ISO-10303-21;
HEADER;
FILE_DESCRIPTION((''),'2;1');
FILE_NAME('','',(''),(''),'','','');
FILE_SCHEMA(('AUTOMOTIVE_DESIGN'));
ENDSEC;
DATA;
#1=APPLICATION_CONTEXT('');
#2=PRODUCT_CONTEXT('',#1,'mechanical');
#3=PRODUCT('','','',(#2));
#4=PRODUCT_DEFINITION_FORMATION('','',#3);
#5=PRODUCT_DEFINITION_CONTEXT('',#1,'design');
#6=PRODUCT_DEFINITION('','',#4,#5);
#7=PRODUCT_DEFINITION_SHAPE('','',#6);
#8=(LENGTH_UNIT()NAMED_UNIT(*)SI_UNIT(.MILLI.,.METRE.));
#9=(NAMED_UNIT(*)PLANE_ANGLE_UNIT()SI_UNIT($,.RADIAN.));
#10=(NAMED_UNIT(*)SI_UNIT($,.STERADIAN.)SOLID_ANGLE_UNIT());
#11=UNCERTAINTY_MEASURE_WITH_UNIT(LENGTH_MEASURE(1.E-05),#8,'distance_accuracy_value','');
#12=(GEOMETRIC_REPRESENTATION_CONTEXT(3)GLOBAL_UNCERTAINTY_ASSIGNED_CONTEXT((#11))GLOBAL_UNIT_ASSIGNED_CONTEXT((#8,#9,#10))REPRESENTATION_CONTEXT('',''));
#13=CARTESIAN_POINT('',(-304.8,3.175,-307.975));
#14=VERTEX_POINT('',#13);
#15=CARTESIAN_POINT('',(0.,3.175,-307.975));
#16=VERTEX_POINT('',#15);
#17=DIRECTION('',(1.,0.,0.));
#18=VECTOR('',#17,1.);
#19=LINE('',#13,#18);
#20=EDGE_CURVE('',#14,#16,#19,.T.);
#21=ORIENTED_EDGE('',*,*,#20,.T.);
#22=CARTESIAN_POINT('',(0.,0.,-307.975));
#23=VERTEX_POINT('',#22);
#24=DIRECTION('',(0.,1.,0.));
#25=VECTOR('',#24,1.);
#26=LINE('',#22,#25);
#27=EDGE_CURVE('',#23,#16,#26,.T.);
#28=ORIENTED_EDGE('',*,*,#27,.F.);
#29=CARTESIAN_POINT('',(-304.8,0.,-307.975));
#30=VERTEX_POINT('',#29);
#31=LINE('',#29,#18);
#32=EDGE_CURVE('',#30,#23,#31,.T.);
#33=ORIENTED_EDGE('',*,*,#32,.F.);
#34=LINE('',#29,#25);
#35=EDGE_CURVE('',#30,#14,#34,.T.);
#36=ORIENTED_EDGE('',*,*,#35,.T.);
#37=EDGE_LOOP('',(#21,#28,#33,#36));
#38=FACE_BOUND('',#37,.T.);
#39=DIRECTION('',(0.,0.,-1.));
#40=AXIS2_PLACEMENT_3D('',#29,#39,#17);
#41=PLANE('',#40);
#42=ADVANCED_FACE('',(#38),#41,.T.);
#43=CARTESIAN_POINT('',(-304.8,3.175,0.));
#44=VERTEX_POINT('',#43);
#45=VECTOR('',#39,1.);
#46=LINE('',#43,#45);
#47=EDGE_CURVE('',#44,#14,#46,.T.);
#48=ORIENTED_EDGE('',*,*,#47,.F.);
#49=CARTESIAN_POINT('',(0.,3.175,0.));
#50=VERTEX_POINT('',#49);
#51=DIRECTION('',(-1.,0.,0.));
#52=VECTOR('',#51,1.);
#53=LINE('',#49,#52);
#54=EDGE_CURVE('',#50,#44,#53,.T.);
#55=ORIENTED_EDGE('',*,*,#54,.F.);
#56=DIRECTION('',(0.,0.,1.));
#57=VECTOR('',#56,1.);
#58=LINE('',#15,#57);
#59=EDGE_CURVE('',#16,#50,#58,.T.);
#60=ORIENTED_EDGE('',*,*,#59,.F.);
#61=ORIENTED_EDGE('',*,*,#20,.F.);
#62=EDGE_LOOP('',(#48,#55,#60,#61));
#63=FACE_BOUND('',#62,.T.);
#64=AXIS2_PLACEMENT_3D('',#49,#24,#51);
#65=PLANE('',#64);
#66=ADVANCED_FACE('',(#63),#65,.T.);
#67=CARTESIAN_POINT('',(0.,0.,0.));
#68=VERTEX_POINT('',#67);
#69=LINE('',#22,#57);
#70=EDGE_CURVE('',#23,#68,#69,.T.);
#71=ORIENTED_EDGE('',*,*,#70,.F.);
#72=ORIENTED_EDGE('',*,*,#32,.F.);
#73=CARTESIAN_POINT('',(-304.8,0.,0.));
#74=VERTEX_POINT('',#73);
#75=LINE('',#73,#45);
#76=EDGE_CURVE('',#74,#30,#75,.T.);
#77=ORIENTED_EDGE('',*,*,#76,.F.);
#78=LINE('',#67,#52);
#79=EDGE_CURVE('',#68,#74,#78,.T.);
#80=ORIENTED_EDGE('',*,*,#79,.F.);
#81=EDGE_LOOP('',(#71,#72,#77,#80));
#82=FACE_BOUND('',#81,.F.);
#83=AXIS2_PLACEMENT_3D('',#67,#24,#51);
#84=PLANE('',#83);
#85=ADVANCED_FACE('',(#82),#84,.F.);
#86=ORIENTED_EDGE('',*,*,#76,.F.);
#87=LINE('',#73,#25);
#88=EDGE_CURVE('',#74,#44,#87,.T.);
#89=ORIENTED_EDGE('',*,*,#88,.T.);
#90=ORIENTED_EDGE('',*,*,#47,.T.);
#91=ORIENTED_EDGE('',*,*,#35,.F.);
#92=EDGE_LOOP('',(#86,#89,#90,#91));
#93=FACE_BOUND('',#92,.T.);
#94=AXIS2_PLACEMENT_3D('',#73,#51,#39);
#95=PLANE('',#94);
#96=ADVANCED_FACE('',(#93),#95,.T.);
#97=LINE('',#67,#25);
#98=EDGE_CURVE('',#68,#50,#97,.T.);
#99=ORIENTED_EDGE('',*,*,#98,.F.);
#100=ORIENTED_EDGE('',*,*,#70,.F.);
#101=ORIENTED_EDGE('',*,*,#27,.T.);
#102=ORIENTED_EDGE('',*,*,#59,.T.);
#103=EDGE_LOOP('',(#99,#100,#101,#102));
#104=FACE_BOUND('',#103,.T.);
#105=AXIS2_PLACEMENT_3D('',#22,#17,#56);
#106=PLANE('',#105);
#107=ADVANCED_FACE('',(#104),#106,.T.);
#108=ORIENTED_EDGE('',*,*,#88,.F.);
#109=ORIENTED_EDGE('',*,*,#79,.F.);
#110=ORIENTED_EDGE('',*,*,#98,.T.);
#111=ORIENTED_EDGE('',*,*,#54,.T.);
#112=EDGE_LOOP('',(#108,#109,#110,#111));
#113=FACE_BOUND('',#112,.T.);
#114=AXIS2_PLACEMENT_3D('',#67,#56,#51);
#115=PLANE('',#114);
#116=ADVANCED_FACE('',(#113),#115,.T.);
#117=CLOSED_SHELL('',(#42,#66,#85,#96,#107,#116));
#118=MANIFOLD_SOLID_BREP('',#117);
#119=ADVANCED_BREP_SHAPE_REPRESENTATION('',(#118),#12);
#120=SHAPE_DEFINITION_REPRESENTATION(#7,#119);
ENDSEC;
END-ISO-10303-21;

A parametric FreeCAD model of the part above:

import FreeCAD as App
import Part
import Sketcher
from FreeCAD import Vector
Q = App.Units.Quantity


def add_polygon(sketch, points):
    """Adds a closed chain of lines whose ends are joined by coincident constraints."""
    first, n = sketch.GeometryCount, len(points)
    for a, b in zip(points, points[1:] + points[:1]):
        sketch.addGeometry(Part.LineSegment(App.Vector(*a, 0), App.Vector(*b, 0)), False)
    for i in range(n):
        sketch.addConstraint(Sketcher.Constraint("Coincident", first + i, 2, first + (i + 1) % n, 1))

doc = App.newDocument("Part")
body = doc.addObject("PartDesign::Body", "Body")

# Sketch on XZ plane
sketch1 = doc.addObject("Sketcher::SketchObject", "Sketch")
body.addObject(sketch1)
sketch1.AttachmentSupport = (doc.XZ_Plane, [""])
sketch1.MapMode = "FlatFace"
add_polygon(sketch1, [(-305, 0), (0, 0), (0, -308), (-305, -308)])  # lines 0-3
sketch1.addConstraint([
    Sketcher.Constraint("Horizontal", 0),
    Sketcher.Constraint("Vertical", 1),
    Sketcher.Constraint("Horizontal", 2),
    Sketcher.Constraint("Vertical", 3),
    Sketcher.Constraint("Coincident", 0, 2, -1, 1),
    Sketcher.Constraint("DistanceX", 0, 1, 0, 2, Q("12 in")),
    Sketcher.Constraint("DistanceY", 1, 2, 1, 1, Q("12.125 in")),
])
pad1 = doc.addObject("PartDesign::Pad", "Pad")
body.addObject(pad1)
pad1.Profile = sketch1
pad1.Length = Q("0.125 in")
pad1.Reversed = True

doc.recompute()
